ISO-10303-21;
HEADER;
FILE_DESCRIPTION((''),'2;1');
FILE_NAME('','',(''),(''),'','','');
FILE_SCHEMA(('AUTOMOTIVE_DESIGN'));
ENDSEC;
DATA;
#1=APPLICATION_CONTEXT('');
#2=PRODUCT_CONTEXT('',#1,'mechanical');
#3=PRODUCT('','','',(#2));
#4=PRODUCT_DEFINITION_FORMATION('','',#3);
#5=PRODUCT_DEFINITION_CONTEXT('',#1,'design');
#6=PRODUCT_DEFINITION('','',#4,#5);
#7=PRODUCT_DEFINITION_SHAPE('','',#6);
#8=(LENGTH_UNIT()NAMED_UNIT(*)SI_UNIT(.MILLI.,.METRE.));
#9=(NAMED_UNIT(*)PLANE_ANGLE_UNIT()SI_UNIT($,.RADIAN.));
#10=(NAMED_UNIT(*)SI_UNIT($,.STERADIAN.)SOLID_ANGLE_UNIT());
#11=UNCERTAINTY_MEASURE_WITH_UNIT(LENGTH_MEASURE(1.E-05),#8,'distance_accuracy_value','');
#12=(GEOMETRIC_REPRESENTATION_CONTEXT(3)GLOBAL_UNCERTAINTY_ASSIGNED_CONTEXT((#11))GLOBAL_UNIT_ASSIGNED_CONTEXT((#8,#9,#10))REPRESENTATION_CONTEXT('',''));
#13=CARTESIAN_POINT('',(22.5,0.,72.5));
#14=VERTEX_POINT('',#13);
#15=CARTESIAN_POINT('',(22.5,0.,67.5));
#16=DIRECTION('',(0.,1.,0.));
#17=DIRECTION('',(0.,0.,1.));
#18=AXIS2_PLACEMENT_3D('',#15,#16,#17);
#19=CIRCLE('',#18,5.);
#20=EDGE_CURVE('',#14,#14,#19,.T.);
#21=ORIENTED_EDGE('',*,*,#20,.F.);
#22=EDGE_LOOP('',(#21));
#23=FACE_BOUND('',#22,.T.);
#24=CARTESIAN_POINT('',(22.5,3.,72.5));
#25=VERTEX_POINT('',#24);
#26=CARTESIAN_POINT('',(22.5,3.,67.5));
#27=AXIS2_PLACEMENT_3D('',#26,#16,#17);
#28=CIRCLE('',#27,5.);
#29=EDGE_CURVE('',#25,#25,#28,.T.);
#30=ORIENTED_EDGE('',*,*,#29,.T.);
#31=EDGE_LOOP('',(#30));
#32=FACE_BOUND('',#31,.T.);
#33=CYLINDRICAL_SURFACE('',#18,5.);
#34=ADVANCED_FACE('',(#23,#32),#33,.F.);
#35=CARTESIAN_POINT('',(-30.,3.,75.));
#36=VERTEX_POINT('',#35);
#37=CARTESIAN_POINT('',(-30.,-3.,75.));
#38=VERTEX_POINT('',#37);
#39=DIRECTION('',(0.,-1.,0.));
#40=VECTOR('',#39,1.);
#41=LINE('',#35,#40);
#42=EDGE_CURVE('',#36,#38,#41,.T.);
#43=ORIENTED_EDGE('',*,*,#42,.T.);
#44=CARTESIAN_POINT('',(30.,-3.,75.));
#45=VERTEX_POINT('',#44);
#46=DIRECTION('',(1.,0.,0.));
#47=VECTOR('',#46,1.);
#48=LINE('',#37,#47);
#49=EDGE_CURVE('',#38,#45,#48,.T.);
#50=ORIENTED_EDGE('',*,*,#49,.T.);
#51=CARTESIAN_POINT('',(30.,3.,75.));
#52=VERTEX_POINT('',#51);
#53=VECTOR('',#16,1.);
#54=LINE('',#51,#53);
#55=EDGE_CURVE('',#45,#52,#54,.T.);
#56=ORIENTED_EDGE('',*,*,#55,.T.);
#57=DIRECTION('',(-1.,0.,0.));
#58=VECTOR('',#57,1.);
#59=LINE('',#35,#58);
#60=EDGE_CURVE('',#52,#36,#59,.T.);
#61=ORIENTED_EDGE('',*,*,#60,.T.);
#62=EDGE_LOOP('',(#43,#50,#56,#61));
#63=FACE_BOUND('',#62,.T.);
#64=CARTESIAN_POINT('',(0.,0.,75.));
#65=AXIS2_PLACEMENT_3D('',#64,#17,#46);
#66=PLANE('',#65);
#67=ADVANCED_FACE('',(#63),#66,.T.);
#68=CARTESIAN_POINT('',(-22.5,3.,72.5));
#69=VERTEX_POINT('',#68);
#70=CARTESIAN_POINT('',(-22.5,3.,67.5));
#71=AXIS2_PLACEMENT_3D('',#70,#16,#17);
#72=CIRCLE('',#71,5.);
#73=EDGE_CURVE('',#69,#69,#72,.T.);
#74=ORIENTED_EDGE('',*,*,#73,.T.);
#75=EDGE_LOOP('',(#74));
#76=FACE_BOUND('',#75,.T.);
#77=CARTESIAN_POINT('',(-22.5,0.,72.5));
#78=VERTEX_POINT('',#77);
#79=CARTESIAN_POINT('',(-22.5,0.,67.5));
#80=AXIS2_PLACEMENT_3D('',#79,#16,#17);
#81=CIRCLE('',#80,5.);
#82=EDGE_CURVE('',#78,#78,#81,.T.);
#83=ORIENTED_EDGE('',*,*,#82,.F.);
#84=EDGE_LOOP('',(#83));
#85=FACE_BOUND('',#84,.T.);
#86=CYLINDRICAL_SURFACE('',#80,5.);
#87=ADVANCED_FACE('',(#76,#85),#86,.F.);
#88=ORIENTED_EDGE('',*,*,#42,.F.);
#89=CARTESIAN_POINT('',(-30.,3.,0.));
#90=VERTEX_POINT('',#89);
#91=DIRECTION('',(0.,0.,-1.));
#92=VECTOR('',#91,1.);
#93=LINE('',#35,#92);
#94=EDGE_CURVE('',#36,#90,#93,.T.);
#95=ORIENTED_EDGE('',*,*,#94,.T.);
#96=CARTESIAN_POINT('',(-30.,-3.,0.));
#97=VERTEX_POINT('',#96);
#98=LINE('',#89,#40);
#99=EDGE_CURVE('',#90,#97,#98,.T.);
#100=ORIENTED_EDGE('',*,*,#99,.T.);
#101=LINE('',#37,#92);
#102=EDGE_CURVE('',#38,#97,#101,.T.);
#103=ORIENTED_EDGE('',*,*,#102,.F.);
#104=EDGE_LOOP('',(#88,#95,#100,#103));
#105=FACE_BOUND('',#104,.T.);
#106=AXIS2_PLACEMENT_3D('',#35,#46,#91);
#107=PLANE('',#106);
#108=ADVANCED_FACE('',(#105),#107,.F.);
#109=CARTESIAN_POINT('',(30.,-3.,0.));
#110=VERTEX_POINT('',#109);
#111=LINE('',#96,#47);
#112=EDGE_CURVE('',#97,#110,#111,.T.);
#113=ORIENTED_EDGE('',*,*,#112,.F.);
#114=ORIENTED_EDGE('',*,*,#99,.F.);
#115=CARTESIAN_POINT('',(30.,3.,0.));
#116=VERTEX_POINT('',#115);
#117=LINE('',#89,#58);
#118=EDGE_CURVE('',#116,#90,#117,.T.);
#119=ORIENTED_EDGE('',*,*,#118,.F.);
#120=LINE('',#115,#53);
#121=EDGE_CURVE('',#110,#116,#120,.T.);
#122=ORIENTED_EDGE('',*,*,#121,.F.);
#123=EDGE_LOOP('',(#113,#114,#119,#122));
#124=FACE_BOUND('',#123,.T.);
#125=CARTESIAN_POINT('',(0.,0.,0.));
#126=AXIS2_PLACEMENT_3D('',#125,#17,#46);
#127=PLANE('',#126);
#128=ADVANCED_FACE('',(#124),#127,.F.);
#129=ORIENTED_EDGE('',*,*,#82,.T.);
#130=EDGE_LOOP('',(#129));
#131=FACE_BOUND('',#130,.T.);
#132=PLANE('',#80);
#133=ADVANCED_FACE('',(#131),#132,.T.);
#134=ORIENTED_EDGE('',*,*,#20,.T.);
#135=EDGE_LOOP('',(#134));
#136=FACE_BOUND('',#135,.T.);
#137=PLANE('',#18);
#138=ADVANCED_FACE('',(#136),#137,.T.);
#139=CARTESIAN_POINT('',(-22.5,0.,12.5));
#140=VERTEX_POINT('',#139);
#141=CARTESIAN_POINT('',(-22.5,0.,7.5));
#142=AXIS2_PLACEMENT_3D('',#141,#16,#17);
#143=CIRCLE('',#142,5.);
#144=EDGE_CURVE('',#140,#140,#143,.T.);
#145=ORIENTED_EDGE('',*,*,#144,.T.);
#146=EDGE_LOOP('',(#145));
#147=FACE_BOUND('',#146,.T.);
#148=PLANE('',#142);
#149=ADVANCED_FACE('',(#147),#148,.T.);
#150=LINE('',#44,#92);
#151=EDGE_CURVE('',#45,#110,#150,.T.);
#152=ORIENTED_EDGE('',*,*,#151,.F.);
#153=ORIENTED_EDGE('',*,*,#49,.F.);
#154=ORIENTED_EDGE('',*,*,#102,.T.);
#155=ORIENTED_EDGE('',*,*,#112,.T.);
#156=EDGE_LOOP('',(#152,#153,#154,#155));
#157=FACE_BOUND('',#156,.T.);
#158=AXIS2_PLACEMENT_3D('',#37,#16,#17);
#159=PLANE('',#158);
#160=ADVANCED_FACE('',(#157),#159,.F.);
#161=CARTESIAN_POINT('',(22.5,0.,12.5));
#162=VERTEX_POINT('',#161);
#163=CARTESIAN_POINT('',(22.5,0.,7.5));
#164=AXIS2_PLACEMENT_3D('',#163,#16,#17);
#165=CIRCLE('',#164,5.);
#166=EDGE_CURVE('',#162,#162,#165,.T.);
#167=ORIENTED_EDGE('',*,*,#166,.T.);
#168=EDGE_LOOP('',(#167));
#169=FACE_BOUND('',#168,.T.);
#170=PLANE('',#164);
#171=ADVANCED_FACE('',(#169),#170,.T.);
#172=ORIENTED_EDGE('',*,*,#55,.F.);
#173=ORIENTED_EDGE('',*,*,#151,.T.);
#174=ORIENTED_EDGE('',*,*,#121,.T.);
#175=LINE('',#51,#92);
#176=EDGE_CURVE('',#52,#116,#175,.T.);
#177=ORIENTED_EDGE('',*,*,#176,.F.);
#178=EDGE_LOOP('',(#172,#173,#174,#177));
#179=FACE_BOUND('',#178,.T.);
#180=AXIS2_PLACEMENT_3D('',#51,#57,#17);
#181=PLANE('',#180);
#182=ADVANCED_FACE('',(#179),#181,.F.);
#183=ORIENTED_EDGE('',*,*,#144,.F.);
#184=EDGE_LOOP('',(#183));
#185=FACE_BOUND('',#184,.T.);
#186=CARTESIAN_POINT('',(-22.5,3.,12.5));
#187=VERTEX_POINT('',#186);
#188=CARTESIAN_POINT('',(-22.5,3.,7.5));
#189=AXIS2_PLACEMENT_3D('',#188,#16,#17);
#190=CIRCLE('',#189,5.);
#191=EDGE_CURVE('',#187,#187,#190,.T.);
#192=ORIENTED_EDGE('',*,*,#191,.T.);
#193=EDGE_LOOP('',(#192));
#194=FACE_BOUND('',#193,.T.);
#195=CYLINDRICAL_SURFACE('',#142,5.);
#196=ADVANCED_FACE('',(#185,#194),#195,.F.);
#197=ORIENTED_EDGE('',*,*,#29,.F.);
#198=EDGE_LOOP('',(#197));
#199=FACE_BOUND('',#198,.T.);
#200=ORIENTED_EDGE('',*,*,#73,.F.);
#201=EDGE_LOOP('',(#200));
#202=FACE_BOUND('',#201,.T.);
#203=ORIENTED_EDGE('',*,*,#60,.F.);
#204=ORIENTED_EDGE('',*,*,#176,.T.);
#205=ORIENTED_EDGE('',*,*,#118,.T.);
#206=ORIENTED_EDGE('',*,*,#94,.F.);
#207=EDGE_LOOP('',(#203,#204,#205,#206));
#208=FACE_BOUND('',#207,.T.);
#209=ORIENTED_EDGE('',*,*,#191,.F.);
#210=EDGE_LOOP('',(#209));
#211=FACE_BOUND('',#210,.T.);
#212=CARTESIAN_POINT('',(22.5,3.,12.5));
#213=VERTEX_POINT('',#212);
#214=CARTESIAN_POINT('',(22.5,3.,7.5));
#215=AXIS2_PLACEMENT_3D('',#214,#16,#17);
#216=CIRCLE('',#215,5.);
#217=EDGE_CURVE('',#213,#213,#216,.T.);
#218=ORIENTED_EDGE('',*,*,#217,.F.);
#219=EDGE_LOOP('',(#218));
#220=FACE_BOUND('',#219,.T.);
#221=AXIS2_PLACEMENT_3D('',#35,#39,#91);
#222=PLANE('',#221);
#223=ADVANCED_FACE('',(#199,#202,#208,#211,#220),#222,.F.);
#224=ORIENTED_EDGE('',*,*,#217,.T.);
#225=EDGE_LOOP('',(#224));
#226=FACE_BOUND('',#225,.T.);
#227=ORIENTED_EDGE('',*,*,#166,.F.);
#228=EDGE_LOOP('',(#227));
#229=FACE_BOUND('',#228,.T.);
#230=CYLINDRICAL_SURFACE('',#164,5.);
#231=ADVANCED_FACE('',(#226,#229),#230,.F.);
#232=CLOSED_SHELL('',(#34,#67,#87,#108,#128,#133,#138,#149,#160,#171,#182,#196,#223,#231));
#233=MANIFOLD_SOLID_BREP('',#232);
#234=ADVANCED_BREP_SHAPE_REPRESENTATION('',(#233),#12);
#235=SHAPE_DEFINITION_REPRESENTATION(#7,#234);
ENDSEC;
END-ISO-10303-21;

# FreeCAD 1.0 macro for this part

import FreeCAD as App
import Part
import Sketcher
from FreeCAD import Vector
Q = App.Units.Quantity


def add_polygon(sketch, points):
    """Adds a closed chain of lines whose ends are joined by coincident constraints."""
    first, n = sketch.GeometryCount, len(points)
    for a, b in zip(points, points[1:] + points[:1]):
        sketch.addGeometry(Part.LineSegment(App.Vector(*a, 0), App.Vector(*b, 0)), False)
    for i in range(n):
        sketch.addConstraint(Sketcher.Constraint("Coincident", first + i, 2, first + (i + 1) % n, 1))

doc = App.newDocument("Part")
body = doc.addObject("PartDesign::Body", "Body")

sketch1 = body.newObject("Sketcher::SketchObject", "Sketch")
sketch1.AttachmentSupport = (doc.getObject("XY_Plane"), [""])
sketch1.MapMode = "FlatFace"
add_polygon(sketch1, [(-30, 3), (-30, -3), (30, -3), (30, 3)])
sketch1.addConstraint([
    Sketcher.Constraint("Vertical", 0),
    Sketcher.Constraint("Horizontal", 1),
    Sketcher.Constraint("Vertical", 2),
    Sketcher.Constraint("Horizontal", 3),
    Sketcher.Constraint("Symmetric", 0, 2, 2, 2, -1, 1),
    Sketcher.Constraint("DistanceX", 1, 1, 1, 2, Q("60 mm")),
    Sketcher.Constraint("DistanceY", 0, 2, 0, 1, Q("6 mm")),
])
pad1 = body.newObject("PartDesign::Pad", "Pad")
pad1.Profile = sketch1
pad1.Length = 75

sketch2 = body.newObject("Sketcher::SketchObject", "Sketch001")
sketch2.AttachmentSupport = (doc.getObject("XZ_Plane"), [""])
sketch2.MapMode = "FlatFace"
sketch2.AttachmentOffset = App.Placement(Vector(0, 0, -3), App.Rotation())
sketch2.addGeometry([
    Part.Circle(Vector(22.5, 67.5, 0), Vector(0, 0, 1), 5),
    Part.Circle(Vector(-22.5, 67.5, 0), Vector(0, 0, 1), 5),
    Part.Circle(Vector(-22.5, 7.5, 0), Vector(0, 0, 1), 5),
    Part.Circle(Vector(22.5, 7.5, 0), Vector(0, 0, 1), 5),
], False)
sketch2.addConstraint([
    Sketcher.Constraint("Equal", 0, 1),
    Sketcher.Constraint("Equal", 1, 2),
    Sketcher.Constraint("Equal", 2, 3),
    Sketcher.Constraint("Symmetric", 0, 3, 1, 3, -2),
    Sketcher.Constraint("Symmetric", 2, 3, 3, 3, -2),
    Sketcher.Constraint("Vertical", 1, 3, 2, 3),
    Sketcher.Constraint("Diameter", 0, Q("10 mm")),
    Sketcher.Constraint("DistanceX", 1, 3, 0, 3, Q("45 mm")),
    Sketcher.Constraint("DistanceY", 2, 3, 1, 3, Q("60 mm")),
    Sketcher.Constraint("DistanceY", -1, 1, 0, 3, Q("67.5 mm")),
])
pocket1 = body.newObject("PartDesign::Pocket", "Pocket")
pocket1.Profile = sketch2
pocket1.Length = 3
pocket1.Reversed = True

doc.recompute()
